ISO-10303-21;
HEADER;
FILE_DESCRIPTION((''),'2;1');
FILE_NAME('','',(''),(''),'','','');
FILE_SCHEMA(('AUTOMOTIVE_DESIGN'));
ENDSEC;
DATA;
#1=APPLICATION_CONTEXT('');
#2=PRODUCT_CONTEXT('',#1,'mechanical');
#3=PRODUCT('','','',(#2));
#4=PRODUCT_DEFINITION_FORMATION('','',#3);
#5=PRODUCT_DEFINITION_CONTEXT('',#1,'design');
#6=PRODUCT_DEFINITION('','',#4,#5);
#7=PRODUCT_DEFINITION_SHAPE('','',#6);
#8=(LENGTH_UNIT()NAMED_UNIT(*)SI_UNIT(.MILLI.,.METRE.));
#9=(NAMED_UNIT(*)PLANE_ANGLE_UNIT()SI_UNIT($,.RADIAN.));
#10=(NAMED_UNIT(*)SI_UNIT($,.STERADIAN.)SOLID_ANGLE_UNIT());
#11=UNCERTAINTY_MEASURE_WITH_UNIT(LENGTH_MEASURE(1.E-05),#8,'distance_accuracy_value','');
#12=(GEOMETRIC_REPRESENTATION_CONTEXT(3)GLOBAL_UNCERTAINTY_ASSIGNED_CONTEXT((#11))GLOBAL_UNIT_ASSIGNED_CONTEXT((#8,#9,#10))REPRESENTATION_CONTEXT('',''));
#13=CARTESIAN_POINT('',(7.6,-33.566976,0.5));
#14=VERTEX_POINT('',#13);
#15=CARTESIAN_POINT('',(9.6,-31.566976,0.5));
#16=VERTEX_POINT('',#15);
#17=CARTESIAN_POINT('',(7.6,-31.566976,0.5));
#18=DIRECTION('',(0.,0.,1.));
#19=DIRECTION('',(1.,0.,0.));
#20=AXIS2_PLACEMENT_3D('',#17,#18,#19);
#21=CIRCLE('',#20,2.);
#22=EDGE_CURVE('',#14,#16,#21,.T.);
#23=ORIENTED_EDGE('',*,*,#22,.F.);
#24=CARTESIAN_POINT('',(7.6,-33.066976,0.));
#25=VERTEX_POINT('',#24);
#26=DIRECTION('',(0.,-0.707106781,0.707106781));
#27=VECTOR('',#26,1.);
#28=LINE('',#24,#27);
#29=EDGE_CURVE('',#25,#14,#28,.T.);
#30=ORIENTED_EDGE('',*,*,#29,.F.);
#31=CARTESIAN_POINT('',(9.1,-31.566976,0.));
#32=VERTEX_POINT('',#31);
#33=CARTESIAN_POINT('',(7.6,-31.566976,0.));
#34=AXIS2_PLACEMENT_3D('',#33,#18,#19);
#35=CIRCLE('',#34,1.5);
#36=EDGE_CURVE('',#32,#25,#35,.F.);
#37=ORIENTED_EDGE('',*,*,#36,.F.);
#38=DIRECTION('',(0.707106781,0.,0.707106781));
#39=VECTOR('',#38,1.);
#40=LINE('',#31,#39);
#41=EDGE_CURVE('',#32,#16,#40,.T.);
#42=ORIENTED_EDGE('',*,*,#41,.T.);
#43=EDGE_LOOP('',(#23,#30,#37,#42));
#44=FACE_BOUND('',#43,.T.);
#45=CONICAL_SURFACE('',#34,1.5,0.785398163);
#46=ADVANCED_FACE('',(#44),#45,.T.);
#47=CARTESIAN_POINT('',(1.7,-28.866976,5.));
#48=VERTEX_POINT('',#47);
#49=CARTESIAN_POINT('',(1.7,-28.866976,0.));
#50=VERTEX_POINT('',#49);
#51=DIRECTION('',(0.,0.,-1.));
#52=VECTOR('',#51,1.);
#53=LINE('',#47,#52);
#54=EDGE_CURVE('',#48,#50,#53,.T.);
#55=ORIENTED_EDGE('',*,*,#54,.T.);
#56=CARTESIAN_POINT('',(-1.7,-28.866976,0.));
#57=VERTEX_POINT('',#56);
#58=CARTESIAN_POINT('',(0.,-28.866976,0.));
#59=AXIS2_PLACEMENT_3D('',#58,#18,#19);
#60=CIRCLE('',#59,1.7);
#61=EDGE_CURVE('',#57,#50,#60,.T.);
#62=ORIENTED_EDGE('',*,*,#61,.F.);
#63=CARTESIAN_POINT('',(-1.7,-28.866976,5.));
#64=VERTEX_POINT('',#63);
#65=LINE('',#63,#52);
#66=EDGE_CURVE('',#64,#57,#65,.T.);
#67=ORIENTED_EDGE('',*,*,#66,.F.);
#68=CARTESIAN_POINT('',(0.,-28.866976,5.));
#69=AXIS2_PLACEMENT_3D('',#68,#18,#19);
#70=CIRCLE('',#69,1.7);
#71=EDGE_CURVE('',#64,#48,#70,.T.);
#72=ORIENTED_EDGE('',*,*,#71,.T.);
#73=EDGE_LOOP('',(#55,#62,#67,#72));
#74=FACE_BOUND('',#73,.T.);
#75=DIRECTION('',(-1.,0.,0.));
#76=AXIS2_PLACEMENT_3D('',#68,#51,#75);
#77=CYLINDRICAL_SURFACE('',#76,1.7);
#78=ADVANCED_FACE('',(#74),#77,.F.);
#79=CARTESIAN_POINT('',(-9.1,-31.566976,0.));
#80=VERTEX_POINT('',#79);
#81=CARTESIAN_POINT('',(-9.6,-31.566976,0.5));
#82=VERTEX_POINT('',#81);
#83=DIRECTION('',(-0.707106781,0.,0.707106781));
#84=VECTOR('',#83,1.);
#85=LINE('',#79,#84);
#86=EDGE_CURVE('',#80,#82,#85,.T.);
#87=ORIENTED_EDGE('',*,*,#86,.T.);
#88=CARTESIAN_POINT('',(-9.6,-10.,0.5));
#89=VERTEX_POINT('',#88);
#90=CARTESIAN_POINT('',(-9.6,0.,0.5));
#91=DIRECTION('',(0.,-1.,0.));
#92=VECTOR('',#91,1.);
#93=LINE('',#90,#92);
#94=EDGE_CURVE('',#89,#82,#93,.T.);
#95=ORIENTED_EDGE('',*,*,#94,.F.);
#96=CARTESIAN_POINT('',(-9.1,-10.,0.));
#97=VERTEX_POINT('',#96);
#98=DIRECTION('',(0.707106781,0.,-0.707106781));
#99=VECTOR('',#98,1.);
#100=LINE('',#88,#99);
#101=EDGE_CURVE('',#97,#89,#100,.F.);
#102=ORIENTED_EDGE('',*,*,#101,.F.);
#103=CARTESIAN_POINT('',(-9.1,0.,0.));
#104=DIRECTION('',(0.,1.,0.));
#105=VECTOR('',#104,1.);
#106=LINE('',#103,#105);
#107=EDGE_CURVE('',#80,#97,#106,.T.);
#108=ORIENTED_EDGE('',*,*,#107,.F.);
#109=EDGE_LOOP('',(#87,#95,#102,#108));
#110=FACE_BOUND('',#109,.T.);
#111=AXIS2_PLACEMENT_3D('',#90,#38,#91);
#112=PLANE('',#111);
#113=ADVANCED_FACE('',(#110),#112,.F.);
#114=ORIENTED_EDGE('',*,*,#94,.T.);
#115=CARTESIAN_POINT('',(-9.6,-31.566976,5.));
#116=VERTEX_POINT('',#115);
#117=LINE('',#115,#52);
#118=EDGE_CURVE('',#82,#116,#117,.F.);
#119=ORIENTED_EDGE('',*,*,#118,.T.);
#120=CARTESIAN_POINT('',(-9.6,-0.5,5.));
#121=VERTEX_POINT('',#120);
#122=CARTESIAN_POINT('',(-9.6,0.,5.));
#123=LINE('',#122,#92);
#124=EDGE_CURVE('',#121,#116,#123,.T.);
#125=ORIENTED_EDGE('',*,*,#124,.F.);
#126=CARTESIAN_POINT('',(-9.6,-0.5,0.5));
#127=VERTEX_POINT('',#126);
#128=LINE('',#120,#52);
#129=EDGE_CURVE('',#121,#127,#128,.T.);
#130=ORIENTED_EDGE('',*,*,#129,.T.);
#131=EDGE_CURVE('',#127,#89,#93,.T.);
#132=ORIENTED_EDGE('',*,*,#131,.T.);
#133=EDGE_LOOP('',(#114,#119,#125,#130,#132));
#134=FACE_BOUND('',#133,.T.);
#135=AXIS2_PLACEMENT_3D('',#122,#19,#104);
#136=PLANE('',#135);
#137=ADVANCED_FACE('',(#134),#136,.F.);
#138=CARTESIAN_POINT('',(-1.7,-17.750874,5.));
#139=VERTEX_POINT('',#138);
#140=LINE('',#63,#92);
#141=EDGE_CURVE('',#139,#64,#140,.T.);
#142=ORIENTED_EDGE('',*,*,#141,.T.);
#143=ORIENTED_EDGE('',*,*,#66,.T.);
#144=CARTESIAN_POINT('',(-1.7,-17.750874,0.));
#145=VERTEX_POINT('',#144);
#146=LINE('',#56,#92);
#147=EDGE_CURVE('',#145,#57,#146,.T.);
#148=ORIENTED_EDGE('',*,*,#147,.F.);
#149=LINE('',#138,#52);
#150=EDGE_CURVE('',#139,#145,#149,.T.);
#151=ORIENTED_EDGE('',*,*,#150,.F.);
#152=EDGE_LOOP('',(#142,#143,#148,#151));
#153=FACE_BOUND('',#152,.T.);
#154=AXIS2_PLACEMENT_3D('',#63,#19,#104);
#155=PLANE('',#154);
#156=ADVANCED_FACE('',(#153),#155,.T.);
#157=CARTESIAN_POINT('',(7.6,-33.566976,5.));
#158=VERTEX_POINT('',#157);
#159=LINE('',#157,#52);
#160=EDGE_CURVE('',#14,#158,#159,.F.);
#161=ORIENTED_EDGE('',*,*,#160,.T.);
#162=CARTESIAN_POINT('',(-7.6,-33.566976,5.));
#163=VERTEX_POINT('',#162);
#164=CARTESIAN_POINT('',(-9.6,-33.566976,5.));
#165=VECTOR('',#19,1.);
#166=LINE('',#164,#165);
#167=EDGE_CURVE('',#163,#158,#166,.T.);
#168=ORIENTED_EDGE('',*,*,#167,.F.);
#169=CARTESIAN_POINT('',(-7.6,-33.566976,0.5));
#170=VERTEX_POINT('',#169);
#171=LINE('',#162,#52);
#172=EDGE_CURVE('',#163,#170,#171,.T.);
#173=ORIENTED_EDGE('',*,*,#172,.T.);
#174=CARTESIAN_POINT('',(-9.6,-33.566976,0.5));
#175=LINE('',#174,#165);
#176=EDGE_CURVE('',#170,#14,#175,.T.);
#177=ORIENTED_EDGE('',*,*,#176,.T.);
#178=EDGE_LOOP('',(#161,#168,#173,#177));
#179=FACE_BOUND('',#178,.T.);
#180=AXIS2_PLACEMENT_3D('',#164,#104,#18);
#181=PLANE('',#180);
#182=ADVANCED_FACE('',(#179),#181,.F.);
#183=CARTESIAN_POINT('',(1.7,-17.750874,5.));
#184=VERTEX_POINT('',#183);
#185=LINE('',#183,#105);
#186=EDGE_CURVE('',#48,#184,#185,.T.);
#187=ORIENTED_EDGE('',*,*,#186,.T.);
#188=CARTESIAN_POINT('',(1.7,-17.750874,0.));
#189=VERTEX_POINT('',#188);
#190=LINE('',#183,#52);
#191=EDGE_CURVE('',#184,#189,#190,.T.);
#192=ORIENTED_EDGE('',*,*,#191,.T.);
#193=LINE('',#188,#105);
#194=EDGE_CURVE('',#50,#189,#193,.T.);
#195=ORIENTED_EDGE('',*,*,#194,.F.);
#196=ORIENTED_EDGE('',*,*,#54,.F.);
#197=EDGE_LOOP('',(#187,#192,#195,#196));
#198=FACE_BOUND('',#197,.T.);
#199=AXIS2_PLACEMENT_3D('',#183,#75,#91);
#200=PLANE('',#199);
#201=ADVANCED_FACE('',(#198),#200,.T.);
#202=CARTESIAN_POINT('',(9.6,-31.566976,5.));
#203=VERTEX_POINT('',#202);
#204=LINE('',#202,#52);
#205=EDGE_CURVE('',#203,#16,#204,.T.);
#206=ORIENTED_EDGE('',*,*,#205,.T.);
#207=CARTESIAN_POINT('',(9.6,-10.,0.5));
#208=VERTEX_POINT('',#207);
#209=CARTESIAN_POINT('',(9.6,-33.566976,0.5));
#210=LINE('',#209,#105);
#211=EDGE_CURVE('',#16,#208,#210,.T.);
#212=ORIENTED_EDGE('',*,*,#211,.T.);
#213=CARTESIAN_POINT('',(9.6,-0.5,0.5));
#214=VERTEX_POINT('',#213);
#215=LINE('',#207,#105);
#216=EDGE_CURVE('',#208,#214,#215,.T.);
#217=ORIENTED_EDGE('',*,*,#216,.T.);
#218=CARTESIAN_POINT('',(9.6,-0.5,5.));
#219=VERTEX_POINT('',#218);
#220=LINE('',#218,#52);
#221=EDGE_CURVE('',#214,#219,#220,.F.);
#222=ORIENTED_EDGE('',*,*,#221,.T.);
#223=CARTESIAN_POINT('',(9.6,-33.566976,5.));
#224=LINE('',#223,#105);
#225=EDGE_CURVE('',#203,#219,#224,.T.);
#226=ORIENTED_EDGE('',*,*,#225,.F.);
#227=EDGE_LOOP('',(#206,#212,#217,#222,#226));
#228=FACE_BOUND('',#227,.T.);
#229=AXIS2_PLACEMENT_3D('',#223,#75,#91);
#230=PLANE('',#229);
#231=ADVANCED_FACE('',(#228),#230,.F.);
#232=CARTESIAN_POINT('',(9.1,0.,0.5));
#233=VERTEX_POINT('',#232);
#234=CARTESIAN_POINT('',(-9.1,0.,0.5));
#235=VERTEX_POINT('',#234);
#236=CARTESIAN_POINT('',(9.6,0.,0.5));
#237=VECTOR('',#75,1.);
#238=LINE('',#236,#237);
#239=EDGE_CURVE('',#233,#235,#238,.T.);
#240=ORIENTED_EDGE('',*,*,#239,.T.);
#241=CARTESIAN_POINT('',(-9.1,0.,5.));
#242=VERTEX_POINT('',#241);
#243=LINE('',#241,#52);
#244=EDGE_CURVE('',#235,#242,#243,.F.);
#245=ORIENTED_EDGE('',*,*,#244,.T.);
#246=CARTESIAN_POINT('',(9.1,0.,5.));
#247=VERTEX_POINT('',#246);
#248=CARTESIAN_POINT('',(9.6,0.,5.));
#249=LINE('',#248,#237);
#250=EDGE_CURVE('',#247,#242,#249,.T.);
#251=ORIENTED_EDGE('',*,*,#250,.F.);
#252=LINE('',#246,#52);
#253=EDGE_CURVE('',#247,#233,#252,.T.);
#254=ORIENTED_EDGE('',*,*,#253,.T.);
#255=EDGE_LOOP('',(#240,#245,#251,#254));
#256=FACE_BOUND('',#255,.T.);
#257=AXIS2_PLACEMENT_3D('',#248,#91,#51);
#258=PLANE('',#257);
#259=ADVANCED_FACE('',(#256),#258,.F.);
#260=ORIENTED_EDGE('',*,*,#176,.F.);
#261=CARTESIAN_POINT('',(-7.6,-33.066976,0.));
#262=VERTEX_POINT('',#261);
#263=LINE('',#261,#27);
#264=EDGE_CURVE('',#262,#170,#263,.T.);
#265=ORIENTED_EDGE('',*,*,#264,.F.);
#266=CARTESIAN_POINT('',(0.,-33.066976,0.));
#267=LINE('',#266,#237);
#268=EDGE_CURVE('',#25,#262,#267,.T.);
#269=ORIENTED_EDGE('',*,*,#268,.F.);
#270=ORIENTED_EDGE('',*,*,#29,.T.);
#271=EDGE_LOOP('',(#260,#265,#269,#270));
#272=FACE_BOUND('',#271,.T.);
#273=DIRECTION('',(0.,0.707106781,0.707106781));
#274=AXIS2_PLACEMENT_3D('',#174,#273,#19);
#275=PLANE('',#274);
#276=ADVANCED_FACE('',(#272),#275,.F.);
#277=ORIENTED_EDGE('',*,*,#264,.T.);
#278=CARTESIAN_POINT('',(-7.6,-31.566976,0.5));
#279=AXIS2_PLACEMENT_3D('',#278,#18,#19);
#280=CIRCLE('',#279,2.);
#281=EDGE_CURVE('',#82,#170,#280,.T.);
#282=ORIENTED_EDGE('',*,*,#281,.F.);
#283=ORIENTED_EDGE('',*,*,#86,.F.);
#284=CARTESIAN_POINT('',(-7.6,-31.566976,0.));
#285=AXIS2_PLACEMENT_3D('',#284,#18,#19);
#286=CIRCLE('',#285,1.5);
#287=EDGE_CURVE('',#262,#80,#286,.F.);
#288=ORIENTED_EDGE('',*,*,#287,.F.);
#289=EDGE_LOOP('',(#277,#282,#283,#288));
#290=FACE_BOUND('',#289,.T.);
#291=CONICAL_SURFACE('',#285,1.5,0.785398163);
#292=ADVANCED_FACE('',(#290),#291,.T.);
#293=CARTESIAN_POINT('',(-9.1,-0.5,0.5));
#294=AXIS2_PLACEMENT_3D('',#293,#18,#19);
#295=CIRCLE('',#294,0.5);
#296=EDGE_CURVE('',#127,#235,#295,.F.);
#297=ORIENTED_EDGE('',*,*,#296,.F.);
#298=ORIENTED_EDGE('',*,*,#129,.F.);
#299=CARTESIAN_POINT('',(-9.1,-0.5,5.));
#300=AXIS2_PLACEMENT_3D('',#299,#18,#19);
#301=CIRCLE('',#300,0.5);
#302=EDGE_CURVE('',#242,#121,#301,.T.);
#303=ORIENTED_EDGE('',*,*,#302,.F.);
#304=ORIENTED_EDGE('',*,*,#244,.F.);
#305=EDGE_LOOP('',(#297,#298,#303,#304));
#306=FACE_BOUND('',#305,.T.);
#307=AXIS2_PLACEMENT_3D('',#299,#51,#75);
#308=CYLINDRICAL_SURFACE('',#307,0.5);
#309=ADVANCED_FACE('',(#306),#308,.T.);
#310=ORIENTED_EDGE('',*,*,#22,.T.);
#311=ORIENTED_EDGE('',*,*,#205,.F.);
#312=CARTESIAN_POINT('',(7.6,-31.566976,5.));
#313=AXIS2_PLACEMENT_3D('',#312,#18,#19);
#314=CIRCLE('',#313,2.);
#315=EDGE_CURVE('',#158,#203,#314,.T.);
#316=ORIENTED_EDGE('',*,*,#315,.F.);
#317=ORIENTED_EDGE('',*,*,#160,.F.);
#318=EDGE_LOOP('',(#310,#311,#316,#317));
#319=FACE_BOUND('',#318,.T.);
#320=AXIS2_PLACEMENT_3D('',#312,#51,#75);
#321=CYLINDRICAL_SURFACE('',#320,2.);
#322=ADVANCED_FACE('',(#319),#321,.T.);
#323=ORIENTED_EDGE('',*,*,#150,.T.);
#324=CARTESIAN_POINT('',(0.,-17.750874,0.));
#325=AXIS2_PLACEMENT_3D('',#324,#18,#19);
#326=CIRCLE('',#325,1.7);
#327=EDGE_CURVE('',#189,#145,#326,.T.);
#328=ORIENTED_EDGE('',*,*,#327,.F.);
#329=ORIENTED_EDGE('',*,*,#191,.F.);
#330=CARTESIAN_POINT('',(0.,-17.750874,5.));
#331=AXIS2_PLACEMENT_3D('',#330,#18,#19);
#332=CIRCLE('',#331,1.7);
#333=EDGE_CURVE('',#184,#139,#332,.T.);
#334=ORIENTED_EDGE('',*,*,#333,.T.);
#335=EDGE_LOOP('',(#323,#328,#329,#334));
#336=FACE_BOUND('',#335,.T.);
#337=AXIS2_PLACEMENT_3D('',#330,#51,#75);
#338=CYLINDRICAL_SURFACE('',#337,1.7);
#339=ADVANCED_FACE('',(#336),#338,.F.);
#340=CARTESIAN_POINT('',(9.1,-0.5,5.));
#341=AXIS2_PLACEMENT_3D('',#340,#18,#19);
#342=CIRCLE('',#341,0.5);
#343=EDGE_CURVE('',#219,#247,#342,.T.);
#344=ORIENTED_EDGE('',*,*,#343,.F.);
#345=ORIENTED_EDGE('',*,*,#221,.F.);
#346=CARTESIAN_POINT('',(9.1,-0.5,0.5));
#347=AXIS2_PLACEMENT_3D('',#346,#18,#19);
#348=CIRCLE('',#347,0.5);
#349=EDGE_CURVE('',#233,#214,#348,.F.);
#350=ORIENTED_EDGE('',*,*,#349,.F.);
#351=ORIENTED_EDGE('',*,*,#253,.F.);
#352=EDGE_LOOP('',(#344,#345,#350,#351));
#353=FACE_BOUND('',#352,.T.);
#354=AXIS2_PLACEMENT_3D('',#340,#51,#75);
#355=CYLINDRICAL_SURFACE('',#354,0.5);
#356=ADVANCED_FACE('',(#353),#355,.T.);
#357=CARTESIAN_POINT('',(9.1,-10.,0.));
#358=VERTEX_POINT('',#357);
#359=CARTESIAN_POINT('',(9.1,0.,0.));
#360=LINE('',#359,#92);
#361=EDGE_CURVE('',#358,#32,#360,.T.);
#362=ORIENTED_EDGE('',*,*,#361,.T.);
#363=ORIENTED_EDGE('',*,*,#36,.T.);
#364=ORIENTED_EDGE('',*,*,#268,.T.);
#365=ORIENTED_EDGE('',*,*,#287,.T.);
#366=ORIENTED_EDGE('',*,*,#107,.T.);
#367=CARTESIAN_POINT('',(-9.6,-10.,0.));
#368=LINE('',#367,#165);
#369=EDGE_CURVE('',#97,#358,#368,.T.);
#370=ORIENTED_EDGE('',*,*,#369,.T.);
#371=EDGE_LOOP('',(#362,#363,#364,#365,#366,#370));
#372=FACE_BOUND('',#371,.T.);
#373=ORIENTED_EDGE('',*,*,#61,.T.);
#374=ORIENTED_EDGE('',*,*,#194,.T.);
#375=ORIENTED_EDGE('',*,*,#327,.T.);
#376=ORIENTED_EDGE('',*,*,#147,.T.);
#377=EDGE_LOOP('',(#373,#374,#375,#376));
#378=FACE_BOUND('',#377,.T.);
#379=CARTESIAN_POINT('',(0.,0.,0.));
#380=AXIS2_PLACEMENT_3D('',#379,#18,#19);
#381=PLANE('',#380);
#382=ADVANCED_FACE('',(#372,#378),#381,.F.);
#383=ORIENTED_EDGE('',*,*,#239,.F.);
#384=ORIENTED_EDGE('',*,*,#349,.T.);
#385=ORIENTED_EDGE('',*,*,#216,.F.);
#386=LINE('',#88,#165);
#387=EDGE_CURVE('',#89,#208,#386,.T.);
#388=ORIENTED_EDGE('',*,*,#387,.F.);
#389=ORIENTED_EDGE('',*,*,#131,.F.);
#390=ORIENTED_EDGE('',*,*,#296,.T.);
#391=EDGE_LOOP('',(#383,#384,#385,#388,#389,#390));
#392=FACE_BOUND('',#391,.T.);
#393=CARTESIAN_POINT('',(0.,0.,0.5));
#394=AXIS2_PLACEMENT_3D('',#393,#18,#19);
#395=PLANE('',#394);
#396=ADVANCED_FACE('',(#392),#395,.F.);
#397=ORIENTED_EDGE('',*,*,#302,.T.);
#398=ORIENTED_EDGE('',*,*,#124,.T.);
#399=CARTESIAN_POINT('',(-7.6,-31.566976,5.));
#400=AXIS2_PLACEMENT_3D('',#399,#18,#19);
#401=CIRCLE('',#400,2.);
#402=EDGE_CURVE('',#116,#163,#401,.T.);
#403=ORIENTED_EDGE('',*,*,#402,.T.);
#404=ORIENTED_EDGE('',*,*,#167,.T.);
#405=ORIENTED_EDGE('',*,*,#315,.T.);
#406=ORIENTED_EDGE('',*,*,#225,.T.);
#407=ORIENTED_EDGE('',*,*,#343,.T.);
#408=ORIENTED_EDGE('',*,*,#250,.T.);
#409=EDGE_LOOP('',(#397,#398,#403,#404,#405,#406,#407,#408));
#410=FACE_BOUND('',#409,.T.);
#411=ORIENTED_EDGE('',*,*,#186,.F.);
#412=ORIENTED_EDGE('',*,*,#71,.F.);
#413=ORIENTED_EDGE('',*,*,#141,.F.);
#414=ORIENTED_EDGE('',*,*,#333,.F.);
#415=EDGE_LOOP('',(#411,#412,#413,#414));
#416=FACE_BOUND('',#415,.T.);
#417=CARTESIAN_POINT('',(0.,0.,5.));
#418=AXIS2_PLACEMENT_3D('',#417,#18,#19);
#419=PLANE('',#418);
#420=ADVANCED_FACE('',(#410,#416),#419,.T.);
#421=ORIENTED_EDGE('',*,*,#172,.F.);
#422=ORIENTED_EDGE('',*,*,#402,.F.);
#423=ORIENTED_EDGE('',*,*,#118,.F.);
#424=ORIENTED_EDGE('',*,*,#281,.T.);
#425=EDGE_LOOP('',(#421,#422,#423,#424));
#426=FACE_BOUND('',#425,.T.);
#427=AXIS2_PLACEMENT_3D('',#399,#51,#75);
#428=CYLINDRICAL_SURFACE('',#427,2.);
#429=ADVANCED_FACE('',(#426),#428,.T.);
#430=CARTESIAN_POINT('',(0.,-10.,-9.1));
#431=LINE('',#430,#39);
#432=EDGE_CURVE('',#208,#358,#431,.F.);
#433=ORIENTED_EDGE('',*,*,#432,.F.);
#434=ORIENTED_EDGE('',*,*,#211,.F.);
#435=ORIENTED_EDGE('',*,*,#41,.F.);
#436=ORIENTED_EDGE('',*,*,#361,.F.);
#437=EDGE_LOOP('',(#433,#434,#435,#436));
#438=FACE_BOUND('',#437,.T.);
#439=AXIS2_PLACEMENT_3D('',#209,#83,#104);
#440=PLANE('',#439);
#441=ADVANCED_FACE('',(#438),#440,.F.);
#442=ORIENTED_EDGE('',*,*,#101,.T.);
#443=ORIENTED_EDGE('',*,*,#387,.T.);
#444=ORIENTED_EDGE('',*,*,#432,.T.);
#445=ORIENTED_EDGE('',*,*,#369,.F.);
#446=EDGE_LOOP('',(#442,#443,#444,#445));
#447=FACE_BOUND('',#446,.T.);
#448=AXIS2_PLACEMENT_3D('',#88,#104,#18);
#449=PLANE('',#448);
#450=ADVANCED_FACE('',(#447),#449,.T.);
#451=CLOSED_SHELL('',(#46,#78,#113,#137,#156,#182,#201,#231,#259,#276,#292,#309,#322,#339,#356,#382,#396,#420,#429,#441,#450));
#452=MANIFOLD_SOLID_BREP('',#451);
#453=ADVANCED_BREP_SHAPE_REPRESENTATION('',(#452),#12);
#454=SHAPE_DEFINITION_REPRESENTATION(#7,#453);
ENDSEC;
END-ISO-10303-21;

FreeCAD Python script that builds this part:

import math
import FreeCAD as App
import Part
import Sketcher

V = App.Vector


def edges_at(feature, points):
    """Names of the edges that pass closest to the given points."""
    edges = feature.Shape.Edges
    near = lambda p: min(range(len(edges)), key=lambda i: edges[i].distToShape(Part.Vertex(*p))[0])
    return sorted({f"Edge{near(p) + 1}" for p in points})

doc = App.newDocument("Part")
body = doc.addObject("PartDesign::Body", "Body")

# Sketch on XY plane
sketch1 = doc.addObject("Sketcher::SketchObject", "Sketch")
body.addObject(sketch1)
sketch1.AttachmentSupport = (doc.XY_Plane, [""])
sketch1.MapMode = "FlatFace"
sketch1.addGeometry(Part.LineSegment(V(-9.6, 0, 0), V(-9.6, -33.6, 0)), False)
sketch1.addGeometry(Part.LineSegment(V(-9.6, -33.6, 0), V(9.6, -33.6, 0)), False)
sketch1.addGeometry(Part.LineSegment(V(9.6, -33.6, 0), V(9.6, 0, 0)), False)
sketch1.addGeometry(Part.LineSegment(V(9.6, 0, 0), V(-9.6, 0, 0)), False)
sketch1.addGeometry(Part.ArcOfCircle(Part.Circle(V(0, -28.9, 0), V(0, 0, 1), 1.7), math.radians(180), math.radians(360)), False)
sketch1.addGeometry(Part.LineSegment(V(-1.7, -28.9, 0), V(-1.7, -17.8, 0)), False)
sketch1.addGeometry(Part.ArcOfCircle(Part.Circle(V(0, -17.8, 0), V(0, 0, 1), 1.7), math.radians(0), math.radians(180)), False)
sketch1.addGeometry(Part.LineSegment(V(1.7, -17.8, 0), V(1.7, -28.9, 0)), False)
sketch1.addConstraint(Sketcher.Constraint("Coincident", 0, 2, 1, 1))
sketch1.addConstraint(Sketcher.Constraint("Coincident", 1, 2, 2, 1))
sketch1.addConstraint(Sketcher.Constraint("Coincident", 2, 2, 3, 1))
sketch1.addConstraint(Sketcher.Constraint("Coincident", 3, 2, 0, 1))
sketch1.addConstraint(Sketcher.Constraint("Tangent", 4, 1, 5, 1))
sketch1.addConstraint(Sketcher.Constraint("Tangent", 5, 2, 6, 2))
sketch1.addConstraint(Sketcher.Constraint("Tangent", 6, 1, 7, 1))
sketch1.addConstraint(Sketcher.Constraint("Tangent", 7, 2, 4, 2))
sketch1.addConstraint(Sketcher.Constraint("Vertical", 0))
sketch1.addConstraint(Sketcher.Constraint("Horizontal", 1))
sketch1.addConstraint(Sketcher.Constraint("Vertical", 2))
sketch1.addConstraint(Sketcher.Constraint("Horizontal", 3))
sketch1.addConstraint(Sketcher.Constraint("Vertical", 5))
sketch1.addConstraint(Sketcher.Constraint("Vertical", 7))
sketch1.addConstraint(Sketcher.Constraint("Symmetric", 2, 2, 3, 2, -1, 1))
sketch1.addConstraint(Sketcher.Constraint("PointOnObject", 4, 3, -2))
sketch1.addConstraint(Sketcher.Constraint("Radius", 4, 1.7))
sketch1.addConstraint(Sketcher.Constraint("DistanceX", 1, 1, 1, 2, 19.2))
sketch1.addConstraint(Sketcher.Constraint("DistanceY", 0, 2, 4, 3, 4.7))
sketch1.addConstraint(Sketcher.Constraint("DistanceY", 5, 1, 5, 2, 11.116102))
sketch1.addConstraint(Sketcher.Constraint("DistanceY", 0, 2, 0, 1, 33.566976))
pad1 = doc.addObject("PartDesign::Pad", "Pad")
body.addObject(pad1)
pad1.Profile = sketch1
pad1.Length = 5
doc.recompute()

fillet = doc.addObject("PartDesign::Fillet", "Fillet")
body.addObject(fillet)
fillet.Base = (pad1, edges_at(pad1, [(-9.6, -33.567, 2.5), (9.6, -33.567, 2.5)]))
fillet.Radius = 2

# Sketch on XY plane
sketch2 = doc.addObject("Sketcher::SketchObject", "Sketch001")
body.addObject(sketch2)
sketch2.AttachmentSupport = (doc.XY_Plane, [""])
sketch2.MapMode = "FlatFace"
sketch2.addGeometry(Part.LineSegment(V(-10, 0, 0), V(-10, -10, 0)), False)
sketch2.addGeometry(Part.LineSegment(V(-10, -10, 0), V(10, -10, 0)), False)
sketch2.addGeometry(Part.LineSegment(V(10, -10, 0), V(10, 0, 0)), False)
sketch2.addGeometry(Part.LineSegment(V(10, 0, 0), V(-10, 0, 0)), False)
sketch2.addConstraint(Sketcher.Constraint("Coincident", 0, 2, 1, 1))
sketch2.addConstraint(Sketcher.Constraint("Coincident", 1, 2, 2, 1))
sketch2.addConstraint(Sketcher.Constraint("Coincident", 2, 2, 3, 1))
sketch2.addConstraint(Sketcher.Constraint("Coincident", 3, 2, 0, 1))
sketch2.addConstraint(Sketcher.Constraint("Vertical", 0))
sketch2.addConstraint(Sketcher.Constraint("Horizontal", 1))
sketch2.addConstraint(Sketcher.Constraint("Vertical", 2))
sketch2.addConstraint(Sketcher.Constraint("Horizontal", 3))
sketch2.addConstraint(Sketcher.Constraint("Symmetric", 2, 2, 3, 2, -1, 1))
sketch2.addConstraint(Sketcher.Constraint("DistanceY", 0, 2, 0, 1, 10.0))
sketch2.addConstraint(Sketcher.Constraint("DistanceX", 1, 1, 1, 2, 19.2))
pocket1 = doc.addObject("PartDesign::Pocket", "Pocket")
body.addObject(pocket1)
pocket1.Profile = sketch2
pocket1.Length = 0.5
pocket1.Reversed = True
doc.recompute()

fillet2 = doc.addObject("PartDesign::Fillet", "Fillet001")
body.addObject(fillet2)
fillet2.Base = (pocket1, edges_at(pocket1, [(-9.6, 0, 2.75), (9.6, 0, 2.75)]))
fillet2.Radius = 0.5
doc.recompute()

chamfer = doc.addObject("PartDesign::Chamfer", "Chamfer")
body.addObject(chamfer)
chamfer.Base = (fillet2, edges_at(fillet2, [
    (-9.6, -20.783, 0),
    (-9.014, -32.981, 0),
    (0, -33.567, 0),
    (9.014, -32.981, 0),
    (9.6, -20.783, 0),
]))
chamfer.Size = 0.5

doc.recompute()
